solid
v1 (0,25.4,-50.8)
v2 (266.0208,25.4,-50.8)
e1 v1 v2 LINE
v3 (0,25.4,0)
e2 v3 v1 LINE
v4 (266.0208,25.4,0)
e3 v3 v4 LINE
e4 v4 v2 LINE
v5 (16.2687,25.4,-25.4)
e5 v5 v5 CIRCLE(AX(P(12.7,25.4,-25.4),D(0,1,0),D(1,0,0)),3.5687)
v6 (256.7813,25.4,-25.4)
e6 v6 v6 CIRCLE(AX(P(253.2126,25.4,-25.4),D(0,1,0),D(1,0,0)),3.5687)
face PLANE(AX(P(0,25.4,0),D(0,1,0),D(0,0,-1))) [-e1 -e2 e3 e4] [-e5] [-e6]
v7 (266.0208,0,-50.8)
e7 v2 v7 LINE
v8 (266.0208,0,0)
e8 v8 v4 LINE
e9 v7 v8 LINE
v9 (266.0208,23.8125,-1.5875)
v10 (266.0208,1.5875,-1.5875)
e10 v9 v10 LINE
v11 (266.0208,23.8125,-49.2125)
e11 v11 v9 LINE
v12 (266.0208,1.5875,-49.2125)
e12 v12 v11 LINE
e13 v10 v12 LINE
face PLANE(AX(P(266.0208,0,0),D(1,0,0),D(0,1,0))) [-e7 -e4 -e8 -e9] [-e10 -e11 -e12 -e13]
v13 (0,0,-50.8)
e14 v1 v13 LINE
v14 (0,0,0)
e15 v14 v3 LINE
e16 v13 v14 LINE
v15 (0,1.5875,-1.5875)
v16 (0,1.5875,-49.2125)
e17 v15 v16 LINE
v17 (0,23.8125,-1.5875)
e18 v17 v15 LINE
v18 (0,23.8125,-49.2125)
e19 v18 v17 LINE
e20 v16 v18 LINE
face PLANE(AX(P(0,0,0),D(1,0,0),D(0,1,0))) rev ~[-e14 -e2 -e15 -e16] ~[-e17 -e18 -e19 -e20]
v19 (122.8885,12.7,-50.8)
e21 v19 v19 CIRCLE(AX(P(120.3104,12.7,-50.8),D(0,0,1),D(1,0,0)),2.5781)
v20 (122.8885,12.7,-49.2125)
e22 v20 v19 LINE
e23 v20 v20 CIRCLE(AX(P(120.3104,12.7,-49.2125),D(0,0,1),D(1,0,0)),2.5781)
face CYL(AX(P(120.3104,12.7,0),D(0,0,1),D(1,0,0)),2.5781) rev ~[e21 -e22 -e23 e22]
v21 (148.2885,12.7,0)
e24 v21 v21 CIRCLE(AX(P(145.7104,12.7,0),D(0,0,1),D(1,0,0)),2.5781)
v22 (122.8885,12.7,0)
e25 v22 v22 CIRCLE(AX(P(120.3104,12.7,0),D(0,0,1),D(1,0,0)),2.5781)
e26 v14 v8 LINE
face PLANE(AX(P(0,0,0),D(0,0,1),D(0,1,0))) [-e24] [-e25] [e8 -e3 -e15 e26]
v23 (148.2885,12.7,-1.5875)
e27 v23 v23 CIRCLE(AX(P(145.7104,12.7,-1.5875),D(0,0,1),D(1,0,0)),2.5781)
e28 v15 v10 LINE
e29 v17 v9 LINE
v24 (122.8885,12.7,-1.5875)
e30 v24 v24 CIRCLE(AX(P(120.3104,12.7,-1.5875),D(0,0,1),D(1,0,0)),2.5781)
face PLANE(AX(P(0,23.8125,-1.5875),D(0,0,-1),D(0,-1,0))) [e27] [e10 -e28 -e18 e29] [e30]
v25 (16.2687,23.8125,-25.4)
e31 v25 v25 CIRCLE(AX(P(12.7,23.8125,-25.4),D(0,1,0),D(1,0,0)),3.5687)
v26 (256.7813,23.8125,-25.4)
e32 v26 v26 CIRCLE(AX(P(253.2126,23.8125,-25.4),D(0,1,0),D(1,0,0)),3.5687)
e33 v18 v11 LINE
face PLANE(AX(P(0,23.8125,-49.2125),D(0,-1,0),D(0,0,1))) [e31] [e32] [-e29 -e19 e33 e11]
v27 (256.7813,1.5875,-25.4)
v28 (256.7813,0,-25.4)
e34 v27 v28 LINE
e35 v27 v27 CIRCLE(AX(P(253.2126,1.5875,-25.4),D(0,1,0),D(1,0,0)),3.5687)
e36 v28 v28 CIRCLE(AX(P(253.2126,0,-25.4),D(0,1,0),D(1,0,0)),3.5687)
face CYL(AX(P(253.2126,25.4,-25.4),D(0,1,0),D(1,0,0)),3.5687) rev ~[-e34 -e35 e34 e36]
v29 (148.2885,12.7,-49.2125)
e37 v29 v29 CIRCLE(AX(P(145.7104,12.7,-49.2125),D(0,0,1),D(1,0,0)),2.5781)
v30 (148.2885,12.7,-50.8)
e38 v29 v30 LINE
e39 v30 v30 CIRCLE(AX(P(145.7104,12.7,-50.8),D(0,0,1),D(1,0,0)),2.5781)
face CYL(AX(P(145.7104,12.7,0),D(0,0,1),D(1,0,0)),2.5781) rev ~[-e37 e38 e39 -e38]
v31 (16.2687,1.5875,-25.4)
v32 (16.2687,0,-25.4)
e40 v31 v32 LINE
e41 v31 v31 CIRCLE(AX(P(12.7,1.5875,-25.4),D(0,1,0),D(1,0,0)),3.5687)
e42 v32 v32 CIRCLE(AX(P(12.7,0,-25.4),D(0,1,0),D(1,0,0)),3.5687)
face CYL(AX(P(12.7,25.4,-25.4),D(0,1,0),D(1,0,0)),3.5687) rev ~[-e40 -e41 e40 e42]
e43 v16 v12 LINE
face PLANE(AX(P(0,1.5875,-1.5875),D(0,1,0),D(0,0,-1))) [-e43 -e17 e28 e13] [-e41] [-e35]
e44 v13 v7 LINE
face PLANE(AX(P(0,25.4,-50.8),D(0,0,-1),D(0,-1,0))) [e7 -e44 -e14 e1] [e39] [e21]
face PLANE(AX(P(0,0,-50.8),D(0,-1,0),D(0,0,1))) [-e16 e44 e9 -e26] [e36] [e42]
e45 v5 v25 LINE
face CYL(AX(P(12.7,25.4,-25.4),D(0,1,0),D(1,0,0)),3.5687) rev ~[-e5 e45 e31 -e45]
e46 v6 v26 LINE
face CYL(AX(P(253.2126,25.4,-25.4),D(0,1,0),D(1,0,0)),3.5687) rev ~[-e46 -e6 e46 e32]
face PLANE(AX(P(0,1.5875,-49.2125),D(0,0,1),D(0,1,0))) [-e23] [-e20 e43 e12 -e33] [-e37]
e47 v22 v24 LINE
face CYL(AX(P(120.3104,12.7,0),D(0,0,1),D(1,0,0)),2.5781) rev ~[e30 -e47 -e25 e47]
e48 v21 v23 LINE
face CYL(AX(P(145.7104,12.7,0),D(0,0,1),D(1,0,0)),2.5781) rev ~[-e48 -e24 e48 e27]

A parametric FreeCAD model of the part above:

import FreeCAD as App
import Part
import Sketcher
from FreeCAD import Vector
Q = App.Units.Quantity


def add_polygon(sketch, points):
    """Adds a closed chain of lines whose ends are joined by coincident constraints."""
    first, n = sketch.GeometryCount, len(points)
    for a, b in zip(points, points[1:] + points[:1]):
        sketch.addGeometry(Part.LineSegment(App.Vector(*a, 0), App.Vector(*b, 0)), False)
    for i in range(n):
        sketch.addConstraint(Sketcher.Constraint("Coincident", first + i, 2, first + (i + 1) % n, 1))

doc = App.newDocument("Part")
body = doc.addObject("PartDesign::Body", "Body")

# Sketch on YZ plane
sketch1 = body.newObject("Sketcher::SketchObject", "Sketch")
sketch1.AttachmentSupport = (doc.getObject("YZ_Plane"), [""])
sketch1.MapMode = "FlatFace"
add_polygon(sketch1, [(25, 0), (0, 0), (0, -51), (25, -51)])  # lines 0-3
add_polygon(sketch1, [(2, -2), (24, -2), (24, -49), (2, -49)])  # lines 4-7
sketch1.addConstraint(Sketcher.Constraint("Horizontal", 0))
sketch1.addConstraint(Sketcher.Constraint("Vertical", 1))
sketch1.addConstraint(Sketcher.Constraint("Horizontal", 2))
sketch1.addConstraint(Sketcher.Constraint("Vertical", 3))
sketch1.addConstraint(Sketcher.Constraint("Horizontal", 4))
sketch1.addConstraint(Sketcher.Constraint("Vertical", 5))
sketch1.addConstraint(Sketcher.Constraint("Horizontal", 6))
sketch1.addConstraint(Sketcher.Constraint("Vertical", 7))
sketch1.addConstraint(Sketcher.Constraint("Coincident", 0, 2, -1, 1))
sketch1.addConstraint(Sketcher.Constraint("DistanceX", 0, 2, 0, 1, Q("1 in")))
sketch1.addConstraint(Sketcher.Constraint("DistanceY", 1, 2, 1, 1, Q("2 in")))
sketch1.addConstraint(Sketcher.Constraint("DistanceY", 4, 2, -1, 1, Q("0.0625 in")))
sketch1.addConstraint(Sketcher.Constraint("DistanceX", -1, 1, 6, 2, Q("0.0625 in")))
sketch1.addConstraint(Sketcher.Constraint("DistanceX", 4, 2, 3, 2, Q("0.0625 in")))
sketch1.addConstraint(Sketcher.Constraint("DistanceY", 2, 2, 5, 2, Q("0.0625 in")))
pad1 = body.newObject("PartDesign::Pad", "Pad")
pad1.Profile = sketch1
pad1.Length = 266.0208

# Sketch on XZ plane
sketch2 = body.newObject("Sketcher::SketchObject", "Sketch001")
sketch2.AttachmentSupport = (doc.getObject("XZ_Plane"), [""])
sketch2.MapMode = "FlatFace"
sketch2.AttachmentOffset = App.Placement(Vector(0, 0, -1 * 25.4), App.Rotation())
sketch2.addGeometry(Part.Circle(Vector(12.7, -25.4, 0), Vector(0, 0, 1), 3.6), False)
sketch2.addGeometry(Part.Circle(Vector(253.2, -25.4, 0), Vector(0, 0, 1), 3.6), False)
sketch2.addConstraint(Sketcher.Constraint("Equal", 0, 1))
sketch2.addConstraint(Sketcher.Constraint("Horizontal", 0, 3, 1, 3))
sketch2.addConstraint(Sketcher.Constraint("Diameter", 0, Q("0.281 in")))
sketch2.addConstraint(Sketcher.Constraint("DistanceY", 0, 3, -1, 1, Q("1 in")))
sketch2.addConstraint(Sketcher.Constraint("DistanceX", -1, 1, 0, 3, Q("0.5 in")))
sketch2.addConstraint(Sketcher.Constraint("DistanceX", 0, 3, 1, 3, Q("9.469 in")))
pocket1 = body.newObject("PartDesign::Pocket", "Pocket")
pocket1.Profile = sketch2
pocket1.Length = Q("1 in")
pocket1.Reversed = True

# Sketch on XY plane
sketch3 = body.newObject("Sketcher::SketchObject", "Sketch002")
sketch3.AttachmentSupport = (doc.getObject("XY_Plane"), [""])
sketch3.MapMode = "FlatFace"
sketch3.addGeometry(Part.Circle(Vector(120.3, 12.7, 0), Vector(0, 0, 1), 2.6), False)
sketch3.addGeometry(Part.Circle(Vector(145.7, 12.7, 0), Vector(0, 0, 1), 2.6), False)
sketch3.addConstraint(Sketcher.Constraint("Equal", 0, 1))
sketch3.addConstraint(Sketcher.Constraint("Horizontal", 0, 3, 1, 3))
sketch3.addConstraint(Sketcher.Constraint("Diameter", 0, Q("0.203 in")))
sketch3.addConstraint(Sketcher.Constraint("DistanceX", 0, 3, 1, 3, Q("1 in")))
sketch3.addConstraint(Sketcher.Constraint("DistanceY", -1, 1, 0, 3, Q("0.5 in")))
sketch3.addConstraint(Sketcher.Constraint("DistanceX", -1, 1, 0, 3, 120.3104))
pocket2 = body.newObject("PartDesign::Pocket", "Pocket001")
pocket2.Profile = sketch3
pocket2.Type = "ThroughAll"

doc.recompute()
